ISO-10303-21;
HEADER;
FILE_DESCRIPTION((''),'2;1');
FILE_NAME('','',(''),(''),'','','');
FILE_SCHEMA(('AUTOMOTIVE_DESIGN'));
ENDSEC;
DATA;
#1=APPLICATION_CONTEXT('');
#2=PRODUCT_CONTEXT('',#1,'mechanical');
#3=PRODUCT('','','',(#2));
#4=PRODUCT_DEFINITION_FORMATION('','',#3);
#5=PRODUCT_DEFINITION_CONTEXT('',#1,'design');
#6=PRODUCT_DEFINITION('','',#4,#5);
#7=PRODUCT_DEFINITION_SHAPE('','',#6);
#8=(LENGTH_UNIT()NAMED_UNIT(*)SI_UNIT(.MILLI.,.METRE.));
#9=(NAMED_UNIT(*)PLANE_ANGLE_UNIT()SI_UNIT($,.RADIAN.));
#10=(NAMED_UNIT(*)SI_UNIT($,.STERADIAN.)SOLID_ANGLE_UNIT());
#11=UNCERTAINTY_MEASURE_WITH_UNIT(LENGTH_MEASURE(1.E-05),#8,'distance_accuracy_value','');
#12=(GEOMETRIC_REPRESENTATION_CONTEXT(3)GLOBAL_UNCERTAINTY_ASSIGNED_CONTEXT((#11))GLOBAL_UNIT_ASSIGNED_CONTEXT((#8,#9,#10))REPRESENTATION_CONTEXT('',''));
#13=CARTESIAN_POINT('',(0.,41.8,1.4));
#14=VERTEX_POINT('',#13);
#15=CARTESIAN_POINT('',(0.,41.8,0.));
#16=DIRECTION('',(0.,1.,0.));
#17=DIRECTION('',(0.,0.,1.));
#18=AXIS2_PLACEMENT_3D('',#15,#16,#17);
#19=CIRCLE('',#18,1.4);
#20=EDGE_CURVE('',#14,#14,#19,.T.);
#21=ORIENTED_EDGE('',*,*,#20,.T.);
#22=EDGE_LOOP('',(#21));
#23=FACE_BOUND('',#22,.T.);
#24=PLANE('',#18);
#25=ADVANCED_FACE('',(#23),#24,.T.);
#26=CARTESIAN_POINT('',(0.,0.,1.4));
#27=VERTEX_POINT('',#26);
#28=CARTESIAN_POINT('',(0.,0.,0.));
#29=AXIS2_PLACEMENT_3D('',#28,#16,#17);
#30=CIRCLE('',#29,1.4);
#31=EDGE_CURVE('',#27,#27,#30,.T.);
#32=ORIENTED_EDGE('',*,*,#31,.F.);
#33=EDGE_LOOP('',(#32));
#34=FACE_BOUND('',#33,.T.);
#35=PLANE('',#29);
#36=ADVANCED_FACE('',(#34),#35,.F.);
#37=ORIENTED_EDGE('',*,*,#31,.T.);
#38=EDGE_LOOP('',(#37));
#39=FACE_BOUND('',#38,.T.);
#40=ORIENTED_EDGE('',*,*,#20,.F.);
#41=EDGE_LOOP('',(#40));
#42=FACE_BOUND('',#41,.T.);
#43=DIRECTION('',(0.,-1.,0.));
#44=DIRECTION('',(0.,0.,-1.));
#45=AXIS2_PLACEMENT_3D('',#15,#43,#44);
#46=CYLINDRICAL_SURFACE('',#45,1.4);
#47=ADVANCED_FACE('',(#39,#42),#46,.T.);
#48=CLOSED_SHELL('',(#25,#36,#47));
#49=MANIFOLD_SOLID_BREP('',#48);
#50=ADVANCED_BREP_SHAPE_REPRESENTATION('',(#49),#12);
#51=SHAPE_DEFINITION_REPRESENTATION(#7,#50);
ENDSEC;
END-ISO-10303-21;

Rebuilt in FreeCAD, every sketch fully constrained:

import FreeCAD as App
import Part
import Sketcher

doc = App.newDocument("Part")
body = doc.addObject("PartDesign::Body", "Body")

# Sketch on XZ plane
sketch1 = body.newObject("Sketcher::SketchObject", "Sketch")
sketch1.AttachmentSupport = (doc.getObject("XZ_Plane"), [""])
sketch1.MapMode = "FlatFace"
sketch1.addGeometry(Part.Circle(App.Vector(0, 0, 0), App.Vector(0, 0, 1), 1.4), False)
sketch1.addConstraint([
    Sketcher.Constraint("Coincident", 0, 3, -1, 1),
    Sketcher.Constraint("Diameter", 0, 2.8),
])
pad1 = body.newObject("PartDesign::Pad", "Pad")
pad1.Profile = sketch1
pad1.Length = 41.8
pad1.Reversed = True

doc.recompute()
